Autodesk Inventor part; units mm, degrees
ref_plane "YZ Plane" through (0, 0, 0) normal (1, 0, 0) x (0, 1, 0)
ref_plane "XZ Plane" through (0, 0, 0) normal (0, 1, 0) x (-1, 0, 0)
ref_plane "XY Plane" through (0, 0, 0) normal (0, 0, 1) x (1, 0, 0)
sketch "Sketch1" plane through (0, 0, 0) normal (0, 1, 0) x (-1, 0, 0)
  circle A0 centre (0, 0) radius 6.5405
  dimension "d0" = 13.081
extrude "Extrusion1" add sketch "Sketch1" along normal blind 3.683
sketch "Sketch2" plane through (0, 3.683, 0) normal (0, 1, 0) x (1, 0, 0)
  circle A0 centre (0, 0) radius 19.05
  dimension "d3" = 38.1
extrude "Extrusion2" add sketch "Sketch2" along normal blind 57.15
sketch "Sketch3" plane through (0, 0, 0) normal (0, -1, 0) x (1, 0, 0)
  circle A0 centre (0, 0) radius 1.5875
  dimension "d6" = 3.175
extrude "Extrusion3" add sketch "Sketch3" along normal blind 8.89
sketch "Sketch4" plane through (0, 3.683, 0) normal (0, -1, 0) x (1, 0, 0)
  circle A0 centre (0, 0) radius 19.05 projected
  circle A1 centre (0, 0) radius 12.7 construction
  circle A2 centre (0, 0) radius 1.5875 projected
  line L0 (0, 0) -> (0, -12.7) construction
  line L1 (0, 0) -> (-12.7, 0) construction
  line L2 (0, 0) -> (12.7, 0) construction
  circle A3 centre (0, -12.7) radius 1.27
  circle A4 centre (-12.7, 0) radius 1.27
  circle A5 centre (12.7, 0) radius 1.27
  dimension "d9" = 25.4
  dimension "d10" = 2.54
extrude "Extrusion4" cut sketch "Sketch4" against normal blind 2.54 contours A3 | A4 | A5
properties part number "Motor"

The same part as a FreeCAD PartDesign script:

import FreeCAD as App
import Part
import Sketcher

V = App.Vector
Q = App.Units.Quantity

doc = App.newDocument("Part")
body = doc.addObject("PartDesign::Body", "Body")

sketch1 = doc.addObject("Sketcher::SketchObject", "Sketch")
body.addObject(sketch1)
sketch1.AttachmentSupport = (doc.XZ_Plane, [""])
sketch1.MapMode = "FlatFace"
sketch1.addGeometry(Part.Circle(V(0, 0, 0), V(0, 0, 1), 7), False)
sketch1.addConstraint([
    Sketcher.Constraint("Coincident", 0, 3, -1, 1),
    Sketcher.Constraint("Diameter", 0, Q("0.515 in")),
])
pad1 = doc.addObject("PartDesign::Pad", "Pad")
body.addObject(pad1)
pad1.Profile = sketch1
pad1.Length = Q("0.145 in")
pad1.Reversed = True

sketch2 = doc.addObject("Sketcher::SketchObject", "Sketch001")
body.addObject(sketch2)
sketch2.AttachmentSupport = (doc.XZ_Plane, [""])
sketch2.MapMode = "FlatFace"
sketch2.AttachmentOffset = App.Placement(V(0, 0, -0.145 * 25.4), App.Rotation())
sketch2.addGeometry(Part.Circle(V(0, 0, 0), V(0, 0, 1), 19), False)
sketch2.addConstraint([
    Sketcher.Constraint("Coincident", 0, 3, -1, 1),
    Sketcher.Constraint("Diameter", 0, Q("1.5 in")),
])
pad2 = doc.addObject("PartDesign::Pad", "Pad001")
body.addObject(pad2)
pad2.Profile = sketch2
pad2.Length = Q("2.25 in")
pad2.Reversed = True

sketch3 = doc.addObject("Sketcher::SketchObject", "Sketch002")
body.addObject(sketch3)
sketch3.AttachmentSupport = (doc.XZ_Plane, [""])
sketch3.MapMode = "FlatFace"
sketch3.addGeometry(Part.Circle(V(0, 0, 0), V(0, 0, 1), 1.6), False)
sketch3.addConstraint([
    Sketcher.Constraint("Coincident", 0, 3, -1, 1),
    Sketcher.Constraint("Diameter", 0, Q("0.125 in")),
])
pad3 = doc.addObject("PartDesign::Pad", "Pad002")
body.addObject(pad3)
pad3.Profile = sketch3
pad3.Length = Q("0.35 in")

sketch4 = doc.addObject("Sketcher::SketchObject", "Sketch003")
body.addObject(sketch4)
sketch4.AttachmentSupport = (doc.XZ_Plane, [""])
sketch4.MapMode = "FlatFace"
sketch4.AttachmentOffset = App.Placement(V(0, 0, -0.145 * 25.4), App.Rotation())
sketch4.addGeometry([
    Part.Circle(V(0, -12.7, 0), V(0, 0, 1), 1.3),
    Part.Circle(V(-12.7, 0, 0), V(0, 0, 1), 1.3),
    Part.Circle(V(12.7, 0, 0), V(0, 0, 1), 1.3),
], False)
sketch4.addConstraint([
    Sketcher.Constraint("Equal", 0, 1),
    Sketcher.Constraint("Equal", 1, 2),
    Sketcher.Constraint("Symmetric", 1, 3, 2, 3, -1, 1),
    Sketcher.Constraint("PointOnObject", 0, 3, -2),
    Sketcher.Constraint("PointOnObject", 1, 3, -1),
    Sketcher.Constraint("Diameter", 0, Q("0.1 in")),
    Sketcher.Constraint("DistanceX", 1, 3, 2, 3, Q("1 in")),
    Sketcher.Constraint("DistanceY", 0, 3, -1, 1, Q("0.5 in")),
])
pocket1 = doc.addObject("PartDesign::Pocket", "Pocket")
body.addObject(pocket1)
pocket1.Profile = sketch4
pocket1.Length = Q("0.1 in")

doc.recompute()
